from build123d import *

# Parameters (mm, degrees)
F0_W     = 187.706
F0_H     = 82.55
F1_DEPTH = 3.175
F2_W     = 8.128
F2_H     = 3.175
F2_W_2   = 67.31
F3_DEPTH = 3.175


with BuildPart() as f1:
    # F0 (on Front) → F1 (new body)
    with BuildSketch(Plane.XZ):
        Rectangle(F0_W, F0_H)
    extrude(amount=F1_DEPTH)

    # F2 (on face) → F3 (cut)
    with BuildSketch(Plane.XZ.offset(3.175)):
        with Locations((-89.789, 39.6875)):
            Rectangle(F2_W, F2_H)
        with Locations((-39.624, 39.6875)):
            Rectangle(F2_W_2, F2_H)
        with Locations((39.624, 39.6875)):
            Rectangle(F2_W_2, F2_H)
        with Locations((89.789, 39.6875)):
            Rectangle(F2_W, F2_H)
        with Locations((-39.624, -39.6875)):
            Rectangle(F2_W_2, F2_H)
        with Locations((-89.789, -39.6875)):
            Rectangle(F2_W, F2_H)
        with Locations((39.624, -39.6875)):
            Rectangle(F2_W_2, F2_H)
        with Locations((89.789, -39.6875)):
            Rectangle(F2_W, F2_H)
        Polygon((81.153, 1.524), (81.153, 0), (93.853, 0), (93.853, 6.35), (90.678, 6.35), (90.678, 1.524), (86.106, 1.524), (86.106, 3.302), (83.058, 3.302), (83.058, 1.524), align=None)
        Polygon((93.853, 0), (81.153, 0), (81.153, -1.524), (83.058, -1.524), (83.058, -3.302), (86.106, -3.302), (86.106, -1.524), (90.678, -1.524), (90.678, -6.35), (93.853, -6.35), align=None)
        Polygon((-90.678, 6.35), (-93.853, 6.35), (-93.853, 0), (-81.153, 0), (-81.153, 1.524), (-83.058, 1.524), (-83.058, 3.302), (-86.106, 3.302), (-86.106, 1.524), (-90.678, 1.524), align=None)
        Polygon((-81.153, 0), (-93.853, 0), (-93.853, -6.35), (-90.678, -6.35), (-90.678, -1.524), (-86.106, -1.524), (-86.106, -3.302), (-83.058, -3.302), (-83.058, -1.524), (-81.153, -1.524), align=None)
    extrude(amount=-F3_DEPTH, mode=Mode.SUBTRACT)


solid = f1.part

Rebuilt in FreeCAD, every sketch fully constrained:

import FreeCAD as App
import Part
import Sketcher

V = App.Vector
Q = App.Units.Quantity

doc = App.newDocument("Part")
params = doc.addObject("Spreadsheet::Sheet", "Params")
for row, (alias, value) in enumerate([
    ("sketch1_width", "7.39 in"),
    ("sketch1_height", "3.25 in"),
    ("pad1_length", "0.125 in"),
    ("sketch2_height", "0.5 in"),
    ("sketch2_width", "0.32 in"),
    ("sketch2_width2", "2.65 in"),
    ("sketch2_width3", "0.12 in"),
    ("sketch2_width4", "0.18 in"),
    ("pocket1_length", "0.125 in"),
], start=1):
    params.set(f"A{row}", alias)
    params.set(f"B{row}", "=" + value)
    params.setAlias(f"B{row}", alias)

body = doc.addObject("PartDesign::Body", "Body")

# Sketch on XZ plane
sketch1 = body.newObject("Sketcher::SketchObject", "Sketch")
sketch1.AttachmentSupport = (doc.getObject("XZ_Plane"), [""])
sketch1.MapMode = "FlatFace"
sketch1.addGeometry([
    Part.LineSegment(V(-94, 41, 0), V(-94, -41, 0)),
    Part.LineSegment(V(-94, -41, 0), V(94, -41, 0)),
    Part.LineSegment(V(94, -41, 0), V(94, 41, 0)),
    Part.LineSegment(V(94, 41, 0), V(-94, 41, 0)),
], False)
sketch1.addConstraint([
    Sketcher.Constraint("Coincident", 0, 2, 1, 1),
    Sketcher.Constraint("Coincident", 1, 2, 2, 1),
    Sketcher.Constraint("Coincident", 2, 2, 3, 1),
    Sketcher.Constraint("Coincident", 3, 2, 0, 1),
    Sketcher.Constraint("Vertical", 0),
    Sketcher.Constraint("Horizontal", 1),
    Sketcher.Constraint("Vertical", 2),
    Sketcher.Constraint("Horizontal", 3),
    Sketcher.Constraint("Symmetric", 0, 2, 2, 2, -1, 1),
    Sketcher.Constraint("DistanceX", 1, 1, 1, 2, Q("7.39 in")),
    Sketcher.Constraint("DistanceY", 0, 2, 0, 1, Q("3.25 in")),
])
sketch1.setExpression("Constraints[9]", "Params.sketch1_width")
sketch1.setExpression("Constraints[10]", "Params.sketch1_height")
pad1 = body.newObject("PartDesign::Pad", "Pad")
pad1.Profile = sketch1
pad1.setExpression("Length", "Params.pad1_length")

# Sketch on XZ plane
sketch2 = body.newObject("Sketcher::SketchObject", "Sketch001")
sketch2.AttachmentSupport = (doc.getObject("XZ_Plane"), [""])
sketch2.MapMode = "FlatFace"
sketch2.AttachmentOffset = App.Placement(V(0, 0, 0.125 * 25.4), App.Rotation())
sketch2.addGeometry([
    Part.LineSegment(V(-93.9, 41.3, 0), V(-93.9, 38.1, 0)),  # 0
    Part.LineSegment(V(-93.9, 38.1, 0), V(-85.7, 38.1, 0)),  # 1
    Part.LineSegment(V(-85.7, 38.1, 0), V(-85.7, 41.3, 0)),  # 2
    Part.LineSegment(V(-85.7, 41.3, 0), V(-93.9, 41.3, 0)),  # 3
    Part.LineSegment(V(-73.3, 41.3, 0), V(-73.3, 38.1, 0)),  # 4
    Part.LineSegment(V(-73.3, 38.1, 0), V(-6, 38.1, 0)),  # 5
    Part.LineSegment(V(-6, 38.1, 0), V(-6, 41.3, 0)),  # 6
    Part.LineSegment(V(-6, 41.3, 0), V(-73.3, 41.3, 0)),  # 7
    Part.LineSegment(V(6, 41.3, 0), V(6, 38.1, 0)),  # 8
    Part.LineSegment(V(6, 38.1, 0), V(73.3, 38.1, 0)),  # 9
    Part.LineSegment(V(73.3, 38.1, 0), V(73.3, 41.3, 0)),  # 10
    Part.LineSegment(V(73.3, 41.3, 0), V(6, 41.3, 0)),  # 11
    Part.LineSegment(V(85.7, 41.3, 0), V(85.7, 38.1, 0)),  # 12
    Part.LineSegment(V(85.7, 38.1, 0), V(93.9, 38.1, 0)),  # 13
    Part.LineSegment(V(93.9, 38.1, 0), V(93.9, 41.3, 0)),  # 14
    Part.LineSegment(V(93.9, 41.3, 0), V(85.7, 41.3, 0)),  # 15
    Part.LineSegment(V(-73.3, -38.1, 0), V(-73.3, -41.3, 0)),  # 16
    Part.LineSegment(V(-73.3, -41.3, 0), V(-6, -41.3, 0)),  # 17
    Part.LineSegment(V(-6, -41.3, 0), V(-6, -38.1, 0)),  # 18
    Part.LineSegment(V(-6, -38.1, 0), V(-73.3, -38.1, 0)),  # 19
    Part.LineSegment(V(-93.9, -38.1, 0), V(-93.9, -41.3, 0)),  # 20
    Part.LineSegment(V(-93.9, -41.3, 0), V(-85.7, -41.3, 0)),  # 21
    Part.LineSegment(V(-85.7, -41.3, 0), V(-85.7, -38.1, 0)),  # 22
    Part.LineSegment(V(-85.7, -38.1, 0), V(-93.9, -38.1, 0)),  # 23
    Part.LineSegment(V(6, -38.1, 0), V(6, -41.3, 0)),  # 24
    Part.LineSegment(V(6, -41.3, 0), V(73.3, -41.3, 0)),  # 25
    Part.LineSegment(V(73.3, -41.3, 0), V(73.3, -38.1, 0)),  # 26
    Part.LineSegment(V(73.3, -38.1, 0), V(6, -38.1, 0)),  # 27
    Part.LineSegment(V(85.7, -38.1, 0), V(85.7, -41.3, 0)),  # 28
    Part.LineSegment(V(85.7, -41.3, 0), V(93.9, -41.3, 0)),  # 29
    Part.LineSegment(V(93.9, -41.3, 0), V(93.9, -38.1, 0)),  # 30
    Part.LineSegment(V(93.9, -38.1, 0), V(85.7, -38.1, 0)),  # 31
    Part.LineSegment(V(81.2, 1.5, 0), V(81.2, -1.5, 0)),  # 32
    Part.LineSegment(V(81.2, -1.5, 0), V(83.1, -1.5, 0)),  # 33
    Part.LineSegment(V(83.1, -1.5, 0), V(83.1, -3.3, 0)),  # 34
    Part.LineSegment(V(83.1, -3.3, 0), V(86.1, -3.3, 0)),  # 35
    Part.LineSegment(V(86.1, -3.3, 0), V(86.1, -1.5, 0)),  # 36
    Part.LineSegment(V(86.1, -1.5, 0), V(90.7, -1.5, 0)),  # 37
    Part.LineSegment(V(90.7, -1.5, 0), V(90.7, -6.3, 0)),  # 38
    Part.LineSegment(V(90.7, -6.3, 0), V(93.9, -6.3, 0)),  # 39
    Part.LineSegment(V(93.9, -6.3, 0), V(93.9, 6.3, 0)),  # 40
    Part.LineSegment(V(93.9, 6.3, 0), V(90.7, 6.3, 0)),  # 41
    Part.LineSegment(V(90.7, 6.3, 0), V(90.7, 1.5, 0)),  # 42
    Part.LineSegment(V(90.7, 1.5, 0), V(86.1, 1.5, 0)),  # 43
    Part.LineSegment(V(86.1, 1.5, 0), V(86.1, 3.3, 0)),  # 44
    Part.LineSegment(V(86.1, 3.3, 0), V(83.1, 3.3, 0)),  # 45
    Part.LineSegment(V(83.1, 3.3, 0), V(83.1, 1.5, 0)),  # 46
    Part.LineSegment(V(83.1, 1.5, 0), V(81.2, 1.5, 0)),  # 47
    Part.LineSegment(V(-90.7, 6.3, 0), V(-93.9, 6.3, 0)),  # 48
    Part.LineSegment(V(-93.9, 6.3, 0), V(-93.9, -6.3, 0)),  # 49
    Part.LineSegment(V(-93.9, -6.3, 0), V(-90.7, -6.3, 0)),  # 50
    Part.LineSegment(V(-90.7, -6.3, 0), V(-90.7, -1.5, 0)),  # 51
    Part.LineSegment(V(-90.7, -1.5, 0), V(-86.1, -1.5, 0)),  # 52
    Part.LineSegment(V(-86.1, -1.5, 0), V(-86.1, -3.3, 0)),  # 53
    Part.LineSegment(V(-86.1, -3.3, 0), V(-83.1, -3.3, 0)),  # 54
    Part.LineSegment(V(-83.1, -3.3, 0), V(-83.1, -1.5, 0)),  # 55
    Part.LineSegment(V(-83.1, -1.5, 0), V(-81.2, -1.5, 0)),  # 56
    Part.LineSegment(V(-81.2, -1.5, 0), V(-81.2, 1.5, 0)),  # 57
    Part.LineSegment(V(-81.2, 1.5, 0), V(-83.1, 1.5, 0)),  # 58
    Part.LineSegment(V(-83.1, 1.5, 0), V(-83.1, 3.3, 0)),  # 59
    Part.LineSegment(V(-83.1, 3.3, 0), V(-86.1, 3.3, 0)),  # 60
    Part.LineSegment(V(-86.1, 3.3, 0), V(-86.1, 1.5, 0)),  # 61
    Part.LineSegment(V(-86.1, 1.5, 0), V(-90.7, 1.5, 0)),  # 62
    Part.LineSegment(V(-90.7, 1.5, 0), V(-90.7, 6.3, 0)),  # 63
], False)
sketch2.addConstraint([
    Sketcher.Constraint("Coincident", 0, 2, 1, 1),
    Sketcher.Constraint("Coincident", 1, 2, 2, 1),
    Sketcher.Constraint("Coincident", 2, 2, 3, 1),
    Sketcher.Constraint("Coincident", 3, 2, 0, 1),
    Sketcher.Constraint("Coincident", 4, 2, 5, 1),
    Sketcher.Constraint("Coincident", 5, 2, 6, 1),
    Sketcher.Constraint("Coincident", 6, 2, 7, 1),
    Sketcher.Constraint("Coincident", 7, 2, 4, 1),
    Sketcher.Constraint("Coincident", 8, 2, 9, 1),
    Sketcher.Constraint("Coincident", 9, 2, 10, 1),
    Sketcher.Constraint("Coincident", 10, 2, 11, 1),
    Sketcher.Constraint("Coincident", 11, 2, 8, 1),
    Sketcher.Constraint("Coincident", 12, 2, 13, 1),
    Sketcher.Constraint("Coincident", 13, 2, 14, 1),
    Sketcher.Constraint("Coincident", 14, 2, 15, 1),
    Sketcher.Constraint("Coincident", 15, 2, 12, 1),
    Sketcher.Constraint("Coincident", 16, 2, 17, 1),
    Sketcher.Constraint("Coincident", 17, 2, 18, 1),
    Sketcher.Constraint("Coincident", 18, 2, 19, 1),
    Sketcher.Constraint("Coincident", 19, 2, 16, 1),
    Sketcher.Constraint("Coincident", 20, 2, 21, 1),
    Sketcher.Constraint("Coincident", 21, 2, 22, 1),
    Sketcher.Constraint("Coincident", 22, 2, 23, 1),
    Sketcher.Constraint("Coincident", 23, 2, 20, 1),
    Sketcher.Constraint("Coincident", 24, 2, 25, 1),
    Sketcher.Constraint("Coincident", 25, 2, 26, 1),
    Sketcher.Constraint("Coincident", 26, 2, 27, 1),
    Sketcher.Constraint("Coincident", 27, 2, 24, 1),
    Sketcher.Constraint("Coincident", 28, 2, 29, 1),
    Sketcher.Constraint("Coincident", 29, 2, 30, 1),
    Sketcher.Constraint("Coincident", 30, 2, 31, 1),
    Sketcher.Constraint("Coincident", 31, 2, 28, 1),
    Sketcher.Constraint("Coincident", 32, 2, 33, 1),
    Sketcher.Constraint("Coincident", 33, 2, 34, 1),
    Sketcher.Constraint("Coincident", 34, 2, 35, 1),
    Sketcher.Constraint("Coincident", 35, 2, 36, 1),
    Sketcher.Constraint("Coincident", 36, 2, 37, 1),
    Sketcher.Constraint("Coincident", 37, 2, 38, 1),
    Sketcher.Constraint("Coincident", 38, 2, 39, 1),
    Sketcher.Constraint("Coincident", 39, 2, 40, 1),
    Sketcher.Constraint("Coincident", 40, 2, 41, 1),
    Sketcher.Constraint("Coincident", 41, 2, 42, 1),
    Sketcher.Constraint("Coincident", 42, 2, 43, 1),
    Sketcher.Constraint("Coincident", 43, 2, 44, 1),
    Sketcher.Constraint("Coincident", 44, 2, 45, 1),
    Sketcher.Constraint("Coincident", 45, 2, 46, 1),
    Sketcher.Constraint("Coincident", 46, 2, 47, 1),
    Sketcher.Constraint("Coincident", 47, 2, 32, 1),
    Sketcher.Constraint("Coincident", 48, 2, 49, 1),
    Sketcher.Constraint("Coincident", 49, 2, 50, 1),
    Sketcher.Constraint("Coincident", 50, 2, 51, 1),
    Sketcher.Constraint("Coincident", 51, 2, 52, 1),
    Sketcher.Constraint("Coincident", 52, 2, 53, 1),
    Sketcher.Constraint("Coincident", 53, 2, 54, 1),
    Sketcher.Constraint("Coincident", 54, 2, 55, 1),
    Sketcher.Constraint("Coincident", 55, 2, 56, 1),
    Sketcher.Constraint("Coincident", 56, 2, 57, 1),
    Sketcher.Constraint("Coincident", 57, 2, 58, 1),
    Sketcher.Constraint("Coincident", 58, 2, 59, 1),
    Sketcher.Constraint("Coincident", 59, 2, 60, 1),
    Sketcher.Constraint("Coincident", 60, 2, 61, 1),
    Sketcher.Constraint("Coincident", 61, 2, 62, 1),
    Sketcher.Constraint("Coincident", 62, 2, 63, 1),
    Sketcher.Constraint("Coincident", 63, 2, 48, 1),
    Sketcher.Constraint("Vertical", 0),
    Sketcher.Constraint("Horizontal", 1),
    Sketcher.Constraint("Vertical", 2),
    Sketcher.Constraint("Horizontal", 3),
    Sketcher.Constraint("Vertical", 4),
    Sketcher.Constraint("Horizontal", 5),
    Sketcher.Constraint("Vertical", 6),
    Sketcher.Constraint("Horizontal", 7),
    Sketcher.Constraint("Vertical", 8),
    Sketcher.Constraint("Horizontal", 9),
    Sketcher.Constraint("Vertical", 10),
    Sketcher.Constraint("Horizontal", 11),
    Sketcher.Constraint("Vertical", 12),
    Sketcher.Constraint("Horizontal", 13),
    Sketcher.Constraint("Vertical", 14),
    Sketcher.Constraint("Horizontal", 15),
    Sketcher.Constraint("Vertical", 16),
    Sketcher.Constraint("Horizontal", 17),
    Sketcher.Constraint("Vertical", 18),
    Sketcher.Constraint("Horizontal", 19),
    Sketcher.Constraint("Vertical", 20),
    Sketcher.Constraint("Horizontal", 21),
    Sketcher.Constraint("Vertical", 22),
    Sketcher.Constraint("Horizontal", 23),
    Sketcher.Constraint("Vertical", 24),
    Sketcher.Constraint("Horizontal", 25),
    Sketcher.Constraint("Vertical", 26),
    Sketcher.Constraint("Horizontal", 27),
    Sketcher.Constraint("Vertical", 28),
    Sketcher.Constraint("Horizontal", 29),
    Sketcher.Constraint("Vertical", 30),
    Sketcher.Constraint("Horizontal", 31),
    Sketcher.Constraint("Vertical", 32),
    Sketcher.Constraint("Horizontal", 33),
    Sketcher.Constraint("Vertical", 34),
    Sketcher.Constraint("Horizontal", 35),
    Sketcher.Constraint("Vertical", 36),
    Sketcher.Constraint("Horizontal", 37),
    Sketcher.Constraint("Vertical", 38),
    Sketcher.Constraint("Horizontal", 39),
    Sketcher.Constraint("Vertical", 40),
    Sketcher.Constraint("Horizontal", 41),
    Sketcher.Constraint("Vertical", 42),
    Sketcher.Constraint("Horizontal", 43),
    Sketcher.Constraint("Vertical", 44),
    Sketcher.Constraint("Horizontal", 45),
    Sketcher.Constraint("Vertical", 46),
    Sketcher.Constraint("Horizontal", 47),
    Sketcher.Constraint("Horizontal", 48),
    Sketcher.Constraint("Vertical", 49),
    Sketcher.Constraint("Horizontal", 50),
    Sketcher.Constraint("Vertical", 51),
    Sketcher.Constraint("Horizontal", 52),
    Sketcher.Constraint("Vertical", 53),
    Sketcher.Constraint("Horizontal", 54),
    Sketcher.Constraint("Vertical", 55),
    Sketcher.Constraint("Horizontal", 56),
    Sketcher.Constraint("Vertical", 57),
    Sketcher.Constraint("Horizontal", 58),
    Sketcher.Constraint("Vertical", 59),
    Sketcher.Constraint("Horizontal", 60),
    Sketcher.Constraint("Vertical", 61),
    Sketcher.Constraint("Horizontal", 62),
    Sketcher.Constraint("Vertical", 63),
    Sketcher.Constraint("Symmetric", 10, 2, 16, 2, -1, 1),
    Sketcher.Constraint("Symmetric", 8, 2, 18, 2, -1, 1),
    Sketcher.Constraint("Symmetric", 14, 2, 20, 2, -1, 1),
    Sketcher.Constraint("Symmetric", 12, 2, 22, 2, -1, 1),
    Sketcher.Constraint("Symmetric", 6, 2, 24, 2, -1, 1),
    Sketcher.Constraint("Symmetric", 4, 2, 26, 2, -1, 1),
    Sketcher.Constraint("Symmetric", 2, 2, 28, 2, -1, 1),
    Sketcher.Constraint("Symmetric", 0, 2, 30, 2, -1, 1),
    Sketcher.Constraint("Symmetric", 39, 2, 48, 2, -1, 1),
    Sketcher.Constraint("Symmetric", 41, 2, 50, 2, -1, 1),
    Sketcher.Constraint("Symmetric", 43, 2, 52, 2, -1, 1),
    Sketcher.Constraint("Symmetric", 45, 2, 54, 2, -1, 1),
    Sketcher.Constraint("Symmetric", 47, 2, 56, 2, -1, 1),
    Sketcher.Constraint("Symmetric", 33, 2, 58, 2, -1, 1),
    Sketcher.Constraint("Symmetric", 35, 2, 60, 2, -1, 1),
    Sketcher.Constraint("Symmetric", 37, 2, 62, 2, -1, 1),
    Sketcher.Constraint("Symmetric", 5, 2, 8, 2, -2),
    Sketcher.Constraint("Symmetric", 7, 2, 10, 2, -2),
    Sketcher.Constraint("Symmetric", 1, 2, 12, 2, -2),
    Sketcher.Constraint("Symmetric", 3, 2, 14, 2, -2),
    Sketcher.Constraint("Symmetric", 38, 2, 50, 2, -2),
    Sketcher.Constraint("Symmetric", 36, 2, 52, 2, -2),
    Sketcher.Constraint("Symmetric", 34, 2, 54, 2, -2),
    Sketcher.Constraint("Horizontal", 1, 2, 4, 2),
    Sketcher.Constraint("Horizontal", 3, 2, 6, 2),
    Sketcher.Constraint("Horizontal", 33, 2, 36, 2),
    Sketcher.Constraint("Horizontal", 43, 2, 46, 2),
    Sketcher.Constraint("Vertical", 30, 2, 39, 2),
    Sketcher.Constraint("Equal", 50, 0),
    Sketcher.Constraint("Equal", 60, 32),
    Sketcher.Constraint("DistanceY", 40, 1, 40, 2, Q("0.5 in")),
    Sketcher.Constraint("DistanceX", 1, 1, 1, 2, Q("0.32 in")),
    Sketcher.Constraint("DistanceX", 5, 1, 5, 2, Q("2.65 in")),
    Sketcher.Constraint("DistanceX", 35, 1, 35, 2, Q("0.12 in")),
    Sketcher.Constraint("DistanceX", 37, 1, 37, 2, Q("0.18 in")),
    Sketcher.Constraint("DistanceY", 34, 2, 34, 1, Q("0.07 in")),
    Sketcher.Constraint("DistanceY", -1, 1, 0, 2, Q("1.5 in")),
    Sketcher.Constraint("DistanceX", 33, 1, 33, 2, Q("0.075 in")),
    Sketcher.Constraint("DistanceX", 39, 1, 39, 2, Q("0.125 in")),
    Sketcher.Constraint("DistanceX", -1, 1, 33, 2, Q("3.27 in")),
    Sketcher.Constraint("DistanceX", 4, 2, -1, 1, Q("2.885 in")),
])
sketch2.setExpression("Constraints[158]", "Params.sketch2_height")
sketch2.setExpression("Constraints[159]", "Params.sketch2_width")
sketch2.setExpression("Constraints[160]", "Params.sketch2_width2")
sketch2.setExpression("Constraints[161]", "Params.sketch2_width3")
sketch2.setExpression("Constraints[162]", "Params.sketch2_width4")
pocket1 = body.newObject("PartDesign::Pocket", "Pocket")
pocket1.Profile = sketch2
pocket1.setExpression("Length", "Params.pocket1_length")

doc.recompute()
